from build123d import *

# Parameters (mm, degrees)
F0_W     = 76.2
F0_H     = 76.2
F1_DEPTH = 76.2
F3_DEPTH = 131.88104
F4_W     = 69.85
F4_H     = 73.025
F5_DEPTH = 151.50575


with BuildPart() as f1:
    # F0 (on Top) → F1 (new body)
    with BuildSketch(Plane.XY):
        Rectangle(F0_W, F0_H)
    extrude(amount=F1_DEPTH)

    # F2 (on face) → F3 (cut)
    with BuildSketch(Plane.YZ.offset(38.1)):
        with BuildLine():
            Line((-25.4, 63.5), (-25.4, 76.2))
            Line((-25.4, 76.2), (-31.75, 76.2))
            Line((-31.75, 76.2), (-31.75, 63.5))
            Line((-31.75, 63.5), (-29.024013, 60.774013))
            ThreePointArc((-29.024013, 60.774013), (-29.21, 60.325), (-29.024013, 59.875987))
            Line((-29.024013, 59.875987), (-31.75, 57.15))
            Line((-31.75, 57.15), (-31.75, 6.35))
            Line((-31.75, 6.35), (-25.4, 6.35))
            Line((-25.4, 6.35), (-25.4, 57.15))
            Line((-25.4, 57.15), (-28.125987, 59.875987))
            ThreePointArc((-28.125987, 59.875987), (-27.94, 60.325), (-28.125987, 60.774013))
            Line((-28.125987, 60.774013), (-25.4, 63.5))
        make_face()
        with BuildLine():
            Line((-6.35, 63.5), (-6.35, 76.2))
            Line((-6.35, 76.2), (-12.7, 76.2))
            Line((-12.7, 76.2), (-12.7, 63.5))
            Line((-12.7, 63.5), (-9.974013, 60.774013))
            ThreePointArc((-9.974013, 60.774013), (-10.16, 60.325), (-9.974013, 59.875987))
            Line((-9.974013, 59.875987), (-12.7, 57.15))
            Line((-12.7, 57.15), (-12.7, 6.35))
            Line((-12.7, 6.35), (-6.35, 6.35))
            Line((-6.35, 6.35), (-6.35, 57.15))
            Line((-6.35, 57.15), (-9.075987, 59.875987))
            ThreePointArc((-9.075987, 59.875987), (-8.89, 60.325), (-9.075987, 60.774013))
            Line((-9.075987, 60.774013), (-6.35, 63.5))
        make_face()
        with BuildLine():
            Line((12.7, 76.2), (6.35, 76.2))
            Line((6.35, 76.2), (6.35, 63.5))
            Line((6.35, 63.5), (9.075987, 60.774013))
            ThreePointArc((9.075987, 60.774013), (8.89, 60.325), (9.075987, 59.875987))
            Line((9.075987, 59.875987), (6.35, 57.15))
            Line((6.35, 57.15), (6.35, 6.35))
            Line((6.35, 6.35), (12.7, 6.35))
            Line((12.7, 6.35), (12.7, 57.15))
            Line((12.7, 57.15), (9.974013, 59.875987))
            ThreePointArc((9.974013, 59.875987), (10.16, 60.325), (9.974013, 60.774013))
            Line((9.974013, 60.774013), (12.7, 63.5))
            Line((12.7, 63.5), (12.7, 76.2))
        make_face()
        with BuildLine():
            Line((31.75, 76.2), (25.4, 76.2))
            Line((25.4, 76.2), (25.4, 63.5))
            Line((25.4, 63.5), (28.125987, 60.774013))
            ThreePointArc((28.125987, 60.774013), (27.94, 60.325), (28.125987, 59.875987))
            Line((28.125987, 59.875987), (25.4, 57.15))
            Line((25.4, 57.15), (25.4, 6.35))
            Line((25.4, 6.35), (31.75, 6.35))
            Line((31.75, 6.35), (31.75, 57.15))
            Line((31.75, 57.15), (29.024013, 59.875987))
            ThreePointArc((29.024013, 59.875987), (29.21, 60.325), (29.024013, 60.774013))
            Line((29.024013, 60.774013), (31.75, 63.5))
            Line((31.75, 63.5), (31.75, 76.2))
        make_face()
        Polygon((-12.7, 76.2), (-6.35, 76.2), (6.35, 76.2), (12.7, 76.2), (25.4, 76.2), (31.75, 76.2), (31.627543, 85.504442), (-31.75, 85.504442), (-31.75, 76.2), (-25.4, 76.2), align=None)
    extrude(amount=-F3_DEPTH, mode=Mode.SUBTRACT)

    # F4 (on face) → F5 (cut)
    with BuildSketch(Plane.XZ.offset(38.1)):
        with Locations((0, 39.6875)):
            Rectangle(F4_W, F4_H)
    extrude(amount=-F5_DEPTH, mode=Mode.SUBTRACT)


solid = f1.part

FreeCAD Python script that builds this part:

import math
import FreeCAD as App
import Part
import Sketcher

V = App.Vector
Q = App.Units.Quantity


def add_polygon(sketch, points):
    """Adds a closed chain of lines whose ends are joined by coincident constraints."""
    first, n = sketch.GeometryCount, len(points)
    for a, b in zip(points, points[1:] + points[:1]):
        sketch.addGeometry(Part.LineSegment(App.Vector(*a, 0), App.Vector(*b, 0)), False)
    for i in range(n):
        sketch.addConstraint(Sketcher.Constraint("Coincident", first + i, 2, first + (i + 1) % n, 1))

doc = App.newDocument("Part")
body = doc.addObject("PartDesign::Body", "Body")

# Sketch on XY plane
sketch1 = body.newObject("Sketcher::SketchObject", "Sketch")
sketch1.AttachmentSupport = (doc.getObject("XY_Plane"), [""])
sketch1.MapMode = "FlatFace"
add_polygon(sketch1, [(-38.1, 38.1), (-38.1, -38.1), (38.1, -38.1), (38.1, 38.1)])  # lines 0-3
sketch1.addConstraint(Sketcher.Constraint("Vertical", 0))
sketch1.addConstraint(Sketcher.Constraint("Horizontal", 1))
sketch1.addConstraint(Sketcher.Constraint("Vertical", 2))
sketch1.addConstraint(Sketcher.Constraint("Horizontal", 3))
sketch1.addConstraint(Sketcher.Constraint("Symmetric", 0, 2, 2, 2, -1, 1))
sketch1.addConstraint(Sketcher.Constraint("Equal", 3, 0))
sketch1.addConstraint(Sketcher.Constraint("DistanceX", 1, 1, 1, 2, Q("3 in")))
pad1 = body.newObject("PartDesign::Pad", "Pad")
pad1.Profile = sketch1
pad1.Length = Q("3 in")

# Sketch on YZ plane
sketch2 = body.newObject("Sketcher::SketchObject", "Sketch001")
sketch2.AttachmentSupport = (doc.getObject("YZ_Plane"), [""])
sketch2.MapMode = "FlatFace"
sketch2.AttachmentOffset = App.Placement(V(0, 0, 1.5 * 25.4), App.Rotation())
sketch2.addGeometry(Part.LineSegment(V(-25.4, 63.5, 0), V(-25.4, 76.2, 0)), False)
sketch2.addGeometry(Part.LineSegment(V(-25.4, 76.2, 0), V(-12.7, 76.2, 0)), False)
sketch2.addGeometry(Part.LineSegment(V(-12.7, 76.2, 0), V(-12.7, 63.5, 0)), False)
sketch2.addGeometry(Part.LineSegment(V(-12.7, 63.5, 0), V(-9.974013, 60.774013, 0)), False)
sketch2.addGeometry(Part.ArcOfCircle(Part.Circle(V(-9.524999, 60.325, 0), V(0, 0, 1), 0.635001), math.radians(135.00006), math.radians(224.99994)), False)
sketch2.addGeometry(Part.LineSegment(V(-9.974013, 59.875987, 0), V(-12.7, 57.15, 0)), False)
sketch2.addGeometry(Part.LineSegment(V(-12.7, 57.15, 0), V(-12.7, 6.35, 0)), False)
sketch2.addGeometry(Part.LineSegment(V(-12.7, 6.35, 0), V(-6.35, 6.35, 0)), False)
sketch2.addGeometry(Part.LineSegment(V(-6.35, 6.35, 0), V(-6.35, 57.15, 0)), False)
sketch2.addGeometry(Part.LineSegment(V(-6.35, 57.15, 0), V(-9.075987, 59.875987, 0)), False)
sketch2.addGeometry(Part.ArcOfCircle(Part.Circle(V(-9.525001, 60.325, 0), V(0, 0, 1), 0.635001), math.radians(-44.99994), math.radians(44.99994)), False)
sketch2.addGeometry(Part.LineSegment(V(-9.075987, 60.774013, 0), V(-6.35, 63.5, 0)), False)
sketch2.addGeometry(Part.LineSegment(V(-6.35, 63.5, 0), V(-6.35, 76.2, 0)), False)
sketch2.addGeometry(Part.LineSegment(V(-6.35, 76.2, 0), V(6.35, 76.2, 0)), False)
sketch2.addGeometry(Part.LineSegment(V(6.35, 76.2, 0), V(6.35, 63.5, 0)), False)
sketch2.addGeometry(Part.LineSegment(V(6.35, 63.5, 0), V(9.075987, 60.774013, 0)), False)
sketch2.addGeometry(Part.ArcOfCircle(Part.Circle(V(9.525001, 60.325, 0), V(0, 0, 1), 0.635001), math.radians(135.00006), math.radians(224.99994)), False)
sketch2.addGeometry(Part.LineSegment(V(9.075987, 59.875987, 0), V(6.35, 57.15, 0)), False)
sketch2.addGeometry(Part.LineSegment(V(6.35, 57.15, 0), V(6.35, 6.35, 0)), False)
sketch2.addGeometry(Part.LineSegment(V(6.35, 6.35, 0), V(12.7, 6.35, 0)), False)
sketch2.addGeometry(Part.LineSegment(V(12.7, 6.35, 0), V(12.7, 57.15, 0)), False)
sketch2.addGeometry(Part.LineSegment(V(12.7, 57.15, 0), V(9.974013, 59.875987, 0)), False)
sketch2.addGeometry(Part.ArcOfCircle(Part.Circle(V(9.524999, 60.325, 0), V(0, 0, 1), 0.635001), math.radians(-44.99994), math.radians(44.99994)), False)
sketch2.addGeometry(Part.LineSegment(V(9.974013, 60.774013, 0), V(12.7, 63.5, 0)), False)
sketch2.addGeometry(Part.LineSegment(V(12.7, 63.5, 0), V(12.7, 76.2, 0)), False)
sketch2.addGeometry(Part.LineSegment(V(12.7, 76.2, 0), V(25.4, 76.2, 0)), False)
sketch2.addGeometry(Part.LineSegment(V(25.4, 76.2, 0), V(25.4, 63.5, 0)), False)
sketch2.addGeometry(Part.LineSegment(V(25.4, 63.5, 0), V(28.125987, 60.774013, 0)), False)
sketch2.addGeometry(Part.ArcOfCircle(Part.Circle(V(28.575001, 60.325, 0), V(0, 0, 1), 0.635001), math.radians(135.00006), math.radians(224.99994)), False)
sketch2.addGeometry(Part.LineSegment(V(28.125987, 59.875987, 0), V(25.4, 57.15, 0)), False)
sketch2.addGeometry(Part.LineSegment(V(25.4, 57.15, 0), V(25.4, 6.35, 0)), False)
sketch2.addGeometry(Part.LineSegment(V(25.4, 6.35, 0), V(31.75, 6.35, 0)), False)
sketch2.addGeometry(Part.LineSegment(V(31.75, 6.35, 0), V(31.75, 57.15, 0)), False)
sketch2.addGeometry(Part.LineSegment(V(31.75, 57.15, 0), V(29.024013, 59.875987, 0)), False)
sketch2.addGeometry(Part.ArcOfCircle(Part.Circle(V(28.574999, 60.325, 0), V(0, 0, 1), 0.635001), math.radians(-44.99994), math.radians(44.99994)), False)
sketch2.addGeometry(Part.LineSegment(V(29.024013, 60.774013, 0), V(31.75, 63.5, 0)), False)
sketch2.addGeometry(Part.LineSegment(V(31.75, 63.5, 0), V(31.75, 76.2, 0)), False)
sketch2.addGeometry(Part.LineSegment(V(31.75, 76.2, 0), V(31.627543, 85.504442, 0)), False)
sketch2.addGeometry(Part.LineSegment(V(31.627543, 85.504442, 0), V(-31.75, 85.504442, 0)), False)
sketch2.addGeometry(Part.LineSegment(V(-31.75, 85.504442, 0), V(-31.75, 63.5, 0)), False)
sketch2.addGeometry(Part.LineSegment(V(-31.75, 63.5, 0), V(-29.024013, 60.774013, 0)), False)
sketch2.addGeometry(Part.ArcOfCircle(Part.Circle(V(-28.574999, 60.325, 0), V(0, 0, 1), 0.635001), math.radians(135.00006), math.radians(224.99994)), False)
sketch2.addGeometry(Part.LineSegment(V(-29.024013, 59.875987, 0), V(-31.75, 57.15, 0)), False)
sketch2.addGeometry(Part.LineSegment(V(-31.75, 57.15, 0), V(-31.75, 6.35, 0)), False)
sketch2.addGeometry(Part.LineSegment(V(-31.75, 6.35, 0), V(-25.4, 6.35, 0)), False)
sketch2.addGeometry(Part.LineSegment(V(-25.4, 6.35, 0), V(-25.4, 57.15, 0)), False)
sketch2.addGeometry(Part.LineSegment(V(-25.4, 57.15, 0), V(-28.125987, 59.875987, 0)), False)
sketch2.addGeometry(Part.ArcOfCircle(Part.Circle(V(-28.575001, 60.325, 0), V(0, 0, 1), 0.635001), math.radians(-44.99994), math.radians(44.99994)), False)
sketch2.addGeometry(Part.LineSegment(V(-28.125987, 60.774013, 0), V(-25.4, 63.5, 0)), False)
sketch2.addConstraint(Sketcher.Constraint("Coincident", 0, 2, 1, 1))
sketch2.addConstraint(Sketcher.Constraint("Coincident", 1, 2, 2, 1))
sketch2.addConstraint(Sketcher.Constraint("Coincident", 2, 2, 3, 1))
sketch2.addConstraint(Sketcher.Constraint("Coincident", 3, 2, 4, 1))
sketch2.addConstraint(Sketcher.Constraint("Coincident", 4, 2, 5, 1))
sketch2.addConstraint(Sketcher.Constraint("Coincident", 5, 2, 6, 1))
sketch2.addConstraint(Sketcher.Constraint("Coincident", 6, 2, 7, 1))
sketch2.addConstraint(Sketcher.Constraint("Coincident", 7, 2, 8, 1))
sketch2.addConstraint(Sketcher.Constraint("Coincident", 8, 2, 9, 1))
sketch2.addConstraint(Sketcher.Constraint("Coincident", 9, 2, 10, 1))
sketch2.addConstraint(Sketcher.Constraint("Coincident", 10, 2, 11, 1))
sketch2.addConstraint(Sketcher.Constraint("Coincident", 11, 2, 12, 1))
sketch2.addConstraint(Sketcher.Constraint("Coincident", 12, 2, 13, 1))
sketch2.addConstraint(Sketcher.Constraint("Coincident", 13, 2, 14, 1))
sketch2.addConstraint(Sketcher.Constraint("Coincident", 14, 2, 15, 1))
sketch2.addConstraint(Sketcher.Constraint("Coincident", 15, 2, 16, 1))
sketch2.addConstraint(Sketcher.Constraint("Coincident", 16, 2, 17, 1))
sketch2.addConstraint(Sketcher.Constraint("Coincident", 17, 2, 18, 1))
sketch2.addConstraint(Sketcher.Constraint("Coincident", 18, 2, 19, 1))
sketch2.addConstraint(Sketcher.Constraint("Coincident", 19, 2, 20, 1))
sketch2.addConstraint(Sketcher.Constraint("Coincident", 20, 2, 21, 1))
sketch2.addConstraint(Sketcher.Constraint("Coincident", 21, 2, 22, 1))
sketch2.addConstraint(Sketcher.Constraint("Coincident", 22, 2, 23, 1))
sketch2.addConstraint(Sketcher.Constraint("Coincident", 23, 2, 24, 1))
sketch2.addConstraint(Sketcher.Constraint("Coincident", 24, 2, 25, 1))
sketch2.addConstraint(Sketcher.Constraint("Coincident", 25, 2, 26, 1))
sketch2.addConstraint(Sketcher.Constraint("Coincident", 26, 2, 27, 1))
sketch2.addConstraint(Sketcher.Constraint("Coincident", 27, 2, 28, 1))
sketch2.addConstraint(Sketcher.Constraint("Coincident", 28, 2, 29, 1))
sketch2.addConstraint(Sketcher.Constraint("Coincident", 29, 2, 30, 1))
sketch2.addConstraint(Sketcher.Constraint("Coincident", 30, 2, 31, 1))
sketch2.addConstraint(Sketcher.Constraint("Coincident", 31, 2, 32, 1))
sketch2.addConstraint(Sketcher.Constraint("Coincident", 32, 2, 33, 1))
sketch2.addConstraint(Sketcher.Constraint("Coincident", 33, 2, 34, 1))
sketch2.addConstraint(Sketcher.Constraint("Coincident", 34, 2, 35, 1))
sketch2.addConstraint(Sketcher.Constraint("Coincident", 35, 2, 36, 1))
sketch2.addConstraint(Sketcher.Constraint("Coincident", 36, 2, 37, 1))
sketch2.addConstraint(Sketcher.Constraint("Coincident", 37, 2, 38, 1))
sketch2.addConstraint(Sketcher.Constraint("Coincident", 38, 2, 39, 1))
sketch2.addConstraint(Sketcher.Constraint("Coincident", 39, 2, 40, 1))
sketch2.addConstraint(Sketcher.Constraint("Coincident", 40, 2, 41, 1))
sketch2.addConstraint(Sketcher.Constraint("Coincident", 41, 2, 42, 1))
sketch2.addConstraint(Sketcher.Constraint("Coincident", 42, 2, 43, 1))
sketch2.addConstraint(Sketcher.Constraint("Coincident", 43, 2, 44, 1))
sketch2.addConstraint(Sketcher.Constraint("Coincident", 44, 2, 45, 1))
sketch2.addConstraint(Sketcher.Constraint("Coincident", 45, 2, 46, 1))
sketch2.addConstraint(Sketcher.Constraint("Coincident", 46, 2, 47, 1))
sketch2.addConstraint(Sketcher.Constraint("Coincident", 47, 2, 48, 1))
sketch2.addConstraint(Sketcher.Constraint("Coincident", 48, 2, 0, 1))
sketch2.addConstraint(Sketcher.Constraint("Vertical", 0))
sketch2.addConstraint(Sketcher.Constraint("Horizontal", 1))
sketch2.addConstraint(Sketcher.Constraint("Vertical", 2))
sketch2.addConstraint(Sketcher.Constraint("Vertical", 6))
sketch2.addConstraint(Sketcher.Constraint("Horizontal", 7))
sketch2.addConstraint(Sketcher.Constraint("Vertical", 8))
sketch2.addConstraint(Sketcher.Constraint("Vertical", 12))
sketch2.addConstraint(Sketcher.Constraint("Horizontal", 13))
sketch2.addConstraint(Sketcher.Constraint("Vertical", 14))
sketch2.addConstraint(Sketcher.Constraint("Vertical", 18))
sketch2.addConstraint(Sketcher.Constraint("Horizontal", 19))
sketch2.addConstraint(Sketcher.Constraint("Vertical", 20))
sketch2.addConstraint(Sketcher.Constraint("Vertical", 24))
sketch2.addConstraint(Sketcher.Constraint("Horizontal", 25))
sketch2.addConstraint(Sketcher.Constraint("Vertical", 26))
sketch2.addConstraint(Sketcher.Constraint("Vertical", 30))
sketch2.addConstraint(Sketcher.Constraint("Horizontal", 31))
sketch2.addConstraint(Sketcher.Constraint("Vertical", 32))
sketch2.addConstraint(Sketcher.Constraint("Vertical", 36))
sketch2.addConstraint(Sketcher.Constraint("Horizontal", 38))
sketch2.addConstraint(Sketcher.Constraint("Vertical", 39))
sketch2.addConstraint(Sketcher.Constraint("Vertical", 43))
sketch2.addConstraint(Sketcher.Constraint("Horizontal", 44))
sketch2.addConstraint(Sketcher.Constraint("Vertical", 45))
sketch2.addConstraint(Sketcher.Constraint("Coincident", 10, 3, 4, 3))
sketch2.addConstraint(Sketcher.Constraint("Coincident", 22, 3, 16, 3))
sketch2.addConstraint(Sketcher.Constraint("Coincident", 34, 3, 28, 3))
sketch2.addConstraint(Sketcher.Constraint("Coincident", 47, 3, 41, 3))
sketch2.addConstraint(Sketcher.Constraint("Equal", 4, 10))
sketch2.addConstraint(Sketcher.Constraint("Equal", 10, 16))
sketch2.addConstraint(Sketcher.Constraint("Equal", 16, 22))
sketch2.addConstraint(Sketcher.Constraint("Equal", 22, 28))
sketch2.addConstraint(Sketcher.Constraint("Equal", 28, 34))
sketch2.addConstraint(Sketcher.Constraint("Equal", 34, 41))
sketch2.addConstraint(Sketcher.Constraint("Equal", 41, 47))
sketch2.addConstraint(Sketcher.Constraint("Symmetric", 4, 3, 16, 3, -2))
sketch2.addConstraint(Sketcher.Constraint("Symmetric", 28, 3, 41, 3, -2))
sketch2.addConstraint(Sketcher.Constraint("Symmetric", 11, 2, 14, 2, -2))
sketch2.addConstraint(Sketcher.Constraint("Symmetric", 8, 2, 17, 2, -2))
sketch2.addConstraint(Sketcher.Constraint("Symmetric", 6, 2, 19, 2, -2))
sketch2.addConstraint(Sketcher.Constraint("Symmetric", 2, 2, 23, 2, -2))
sketch2.addConstraint(Sketcher.Constraint("Symmetric", 0, 2, 25, 2, -2))
sketch2.addConstraint(Sketcher.Constraint("Symmetric", 35, 2, 39, 2, -2))
sketch2.addConstraint(Sketcher.Constraint("Symmetric", 32, 2, 42, 2, -2))
sketch2.addConstraint(Sketcher.Constraint("Symmetric", 30, 2, 44, 2, -2))
sketch2.addConstraint(Sketcher.Constraint("Perpendicular", 3, 5))
sketch2.addConstraint(Sketcher.Constraint("Perpendicular", 5, 9))
sketch2.addConstraint(Sketcher.Constraint("Perpendicular", 9, 11))
sketch2.addConstraint(Sketcher.Constraint("Perpendicular", 11, 15))
sketch2.addConstraint(Sketcher.Constraint("Perpendicular", 15, 17))
sketch2.addConstraint(Sketcher.Constraint("Perpendicular", 17, 21))
sketch2.addConstraint(Sketcher.Constraint("Perpendicular", 21, 23))
sketch2.addConstraint(Sketcher.Constraint("Perpendicular", 23, 27))
sketch2.addConstraint(Sketcher.Constraint("Perpendicular", 27, 29))
sketch2.addConstraint(Sketcher.Constraint("Perpendicular", 29, 33))
sketch2.addConstraint(Sketcher.Constraint("Perpendicular", 33, 35))
sketch2.addConstraint(Sketcher.Constraint("Perpendicular", 35, 40))
sketch2.addConstraint(Sketcher.Constraint("Perpendicular", 40, 42))
sketch2.addConstraint(Sketcher.Constraint("Perpendicular", 42, 46))
sketch2.addConstraint(Sketcher.Constraint("Perpendicular", 46, 48))
sketch2.addConstraint(Sketcher.Constraint("Horizontal", 22, 3, 28, 3))
sketch2.addConstraint(Sketcher.Constraint("Horizontal", 5, 2, 8, 2))
sketch2.addConstraint(Sketcher.Constraint("Horizontal", 4, 2, 9, 2))
sketch2.addConstraint(Sketcher.Constraint("Horizontal", 3, 2, 10, 2))
sketch2.addConstraint(Sketcher.Constraint("Horizontal", 2, 2, 11, 2))
sketch2.addConstraint(Sketcher.Constraint("Horizontal", 1, 2, 12, 2))
sketch2.addConstraint(Sketcher.Constraint("Horizontal", 10, 2, 15, 2))
sketch2.addConstraint(Sketcher.Constraint("Horizontal", 17, 2, 20, 2))
sketch2.addConstraint(Sketcher.Constraint("Horizontal", 23, 2, 26, 2))
sketch2.addConstraint(Sketcher.Constraint("Horizontal", 22, 2, 27, 2))
sketch2.addConstraint(Sketcher.Constraint("Horizontal", 21, 2, 28, 2))
sketch2.addConstraint(Sketcher.Constraint("Horizontal", 20, 2, 29, 2))
sketch2.addConstraint(Sketcher.Constraint("Horizontal", 19, 2, 30, 2))
sketch2.addConstraint(Sketcher.Constraint("Horizontal", 29, 2, 32, 2))
sketch2.addConstraint(Sketcher.Constraint("Horizontal", 28, 2, 33, 2))
sketch2.addConstraint(Sketcher.Constraint("Horizontal", 27, 2, 34, 2))
sketch2.addConstraint(Sketcher.Constraint("Horizontal", 26, 2, 35, 2))
sketch2.addConstraint(Sketcher.Constraint("Horizontal", 25, 2, 36, 2))
sketch2.addConstraint(Sketcher.Constraint("Horizontal", 42, 2, 45, 2))
sketch2.addConstraint(Sketcher.Constraint("Horizontal", 40, 2, 47, 2))
sketch2.addConstraint(Sketcher.Constraint("Vertical", 3, 2, 4, 2))
sketch2.addConstraint(Sketcher.Constraint("Vertical", 2, 2, 5, 2))
sketch2.addConstraint(Sketcher.Constraint("Equal", 1, 13))
sketch2.addConstraint(Sketcher.Constraint("Equal", 25, 0))
sketch2.addConstraint(Sketcher.Constraint("DistanceY", 6, 2, 6, 1, Q("2 in")))
sketch2.addConstraint(Sketcher.Constraint("DistanceX", 1, 1, 1, 2, Q("0.5 in")))
sketch2.addConstraint(Sketcher.Constraint("DistanceX", 0, 2, -1, 1, Q("1 in")))
sketch2.addConstraint(Sketcher.Constraint("DistanceY", -1, 1, 0, 2, Q("3 in")))
sketch2.addConstraint(Sketcher.Constraint("Radius", 4, Q("0.025 in")))
sketch2.addConstraint(Sketcher.Constraint("DistanceY", -1, 1, 5, 2, Q("2.25 in")))
sketch2.addConstraint(Sketcher.Constraint("DistanceY", 39, 2, 39, 1, 22.004442))
sketch2.addConstraint(Sketcher.Constraint("DistanceX", 38, 2, 38, 1, 63.377543))
pocket1 = body.newObject("PartDesign::Pocket", "Pocket")
pocket1.Profile = sketch2
pocket1.Length = 131.88104

# Sketch on XZ plane
sketch3 = body.newObject("Sketcher::SketchObject", "Sketch002")
sketch3.AttachmentSupport = (doc.getObject("XZ_Plane"), [""])
sketch3.MapMode = "FlatFace"
sketch3.AttachmentOffset = App.Placement(V(0, 0, 1.5 * 25.4), App.Rotation())
add_polygon(sketch3, [(-34.925, 76.2), (-34.925, 3.175), (34.925, 3.175), (34.925, 76.2)])  # lines 0-3
sketch3.addConstraint(Sketcher.Constraint("Vertical", 0))
sketch3.addConstraint(Sketcher.Constraint("Horizontal", 1))
sketch3.addConstraint(Sketcher.Constraint("Vertical", 2))
sketch3.addConstraint(Sketcher.Constraint("Horizontal", 3))
sketch3.addConstraint(Sketcher.Constraint("DistanceY", -1, 1, 2, 2, Q("3 in")))
sketch3.addConstraint(Sketcher.Constraint("DistanceX", 1, 1, 1, 2, Q("2.75 in")))
sketch3.addConstraint(Sketcher.Constraint("DistanceY", 0, 2, 0, 1, Q("2.875 in")))
sketch3.addConstraint(Sketcher.Constraint("DistanceX", 0, 2, -1, 1, Q("1.375 in")))
pocket2 = body.newObject("PartDesign::Pocket", "Pocket001")
pocket2.Profile = sketch3
pocket2.Length = 151.50575

doc.recompute()
